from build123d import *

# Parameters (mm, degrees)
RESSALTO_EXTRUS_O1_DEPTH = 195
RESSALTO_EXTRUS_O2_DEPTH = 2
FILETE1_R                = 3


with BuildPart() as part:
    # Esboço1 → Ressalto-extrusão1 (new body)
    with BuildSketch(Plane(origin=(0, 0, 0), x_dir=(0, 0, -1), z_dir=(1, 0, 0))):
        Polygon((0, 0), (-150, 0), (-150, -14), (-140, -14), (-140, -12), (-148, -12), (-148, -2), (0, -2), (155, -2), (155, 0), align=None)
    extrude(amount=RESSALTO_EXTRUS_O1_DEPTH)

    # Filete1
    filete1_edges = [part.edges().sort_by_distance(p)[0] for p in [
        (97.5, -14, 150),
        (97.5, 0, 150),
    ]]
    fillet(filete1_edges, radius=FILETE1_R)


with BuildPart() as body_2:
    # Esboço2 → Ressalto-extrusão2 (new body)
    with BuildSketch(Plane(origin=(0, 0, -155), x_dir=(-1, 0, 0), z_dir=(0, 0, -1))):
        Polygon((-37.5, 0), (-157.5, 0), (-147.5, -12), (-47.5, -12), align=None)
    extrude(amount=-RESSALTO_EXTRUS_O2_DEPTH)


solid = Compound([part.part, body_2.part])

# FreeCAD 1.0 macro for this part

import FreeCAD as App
import Part
import Sketcher

V = App.Vector
Q = App.Units.Quantity


def edges_at(feature, points):
    """Names of the edges that pass closest to the given points."""
    edges = feature.Shape.Edges
    near = lambda p: min(range(len(edges)), key=lambda i: edges[i].distToShape(Part.Vertex(*p))[0])
    return sorted({f"Edge{near(p) + 1}" for p in points})


def add_polygon(sketch, points):
    """Adds a closed chain of lines whose ends are joined by coincident constraints."""
    first, n = sketch.GeometryCount, len(points)
    for a, b in zip(points, points[1:] + points[:1]):
        sketch.addGeometry(Part.LineSegment(App.Vector(*a, 0), App.Vector(*b, 0)), False)
    for i in range(n):
        sketch.addConstraint(Sketcher.Constraint("Coincident", first + i, 2, first + (i + 1) % n, 1))

doc = App.newDocument("Part")
params = doc.addObject("Spreadsheet::Sheet", "Params")
for row, (alias, value) in enumerate([
    ("sketch1_width", "14 mm"),
    ("sketch1_width2", "2 mm"),
    ("sketch1_height", "8 mm"),
    ("sketch1_height2", "303 mm"),
    ("pad1_length", "195 mm"),
    ("fillet_radius", "3 mm"),
    ("sketch2_width", "120 mm"),
    ("sketch2_width2", "100 mm"),
    ("pad2_length", "2 mm"),
], start=1):
    params.set(f"A{row}", alias)
    params.set(f"B{row}", "=" + value)
    params.setAlias(f"B{row}", alias)

body = doc.addObject("PartDesign::Body", "Body")

sketch1 = body.newObject("Sketcher::SketchObject", "Sketch")
sketch1.AttachmentSupport = (doc.getObject("YZ_Plane"), [""])
sketch1.MapMode = "FlatFace"
add_polygon(sketch1, [(0, 150), (-14, 150), (-14, 140), (-12, 140), (-12, 148), (-2, 148), (-2, -155), (0, -155)])
sketch1.addConstraint([
    Sketcher.Constraint("Horizontal", 0),
    Sketcher.Constraint("Vertical", 1),
    Sketcher.Constraint("Horizontal", 2),
    Sketcher.Constraint("Vertical", 3),
    Sketcher.Constraint("Horizontal", 4),
    Sketcher.Constraint("Vertical", 5),
    Sketcher.Constraint("Horizontal", 6),
    Sketcher.Constraint("Vertical", 7),
    Sketcher.Constraint("PointOnObject", 6, 2, -2),
    Sketcher.Constraint("Equal", 2, 6),
    Sketcher.Constraint("Equal", 4, 1),
    Sketcher.Constraint("DistanceX", 0, 2, 0, 1, Q("14 mm")),
    Sketcher.Constraint("DistanceX", 2, 1, 2, 2, Q("2 mm")),
    Sketcher.Constraint("DistanceY", 3, 1, 3, 2, Q("8 mm")),
    Sketcher.Constraint("DistanceY", 5, 2, 5, 1, Q("303 mm")),
    Sketcher.Constraint("DistanceY", -1, 1, 0, 2, Q("150 mm")),
])
sketch1.setExpression("Constraints[19]", "Params.sketch1_width")
sketch1.setExpression("Constraints[20]", "Params.sketch1_width2")
sketch1.setExpression("Constraints[21]", "Params.sketch1_height")
sketch1.setExpression("Constraints[22]", "Params.sketch1_height2")
pad1 = body.newObject("PartDesign::Pad", "Pad")
pad1.Profile = sketch1
pad1.setExpression("Length", "Params.pad1_length")
doc.recompute()

fillet = body.newObject("PartDesign::Fillet", "Fillet")
fillet.Base = (pad1, edges_at(pad1, [(97.5, -14, 150), (97.5, 0, 150)]))
fillet.setExpression("Radius", "Params.fillet_radius")
body2 = doc.addObject("PartDesign::Body", "Body001")

sketch2 = body2.newObject("Sketcher::SketchObject", "Sketch001")
sketch2.AttachmentSupport = (doc.getObject("XY_Plane001"), [""])
sketch2.MapMode = "FlatFace"
sketch2.AttachmentOffset = App.Placement(V(0, 0, -155), App.Rotation())
add_polygon(sketch2, [(37.5, 0), (157.5, 0), (147.5, -12), (47.5, -12)])
sketch2.addConstraint([
    Sketcher.Constraint("Horizontal", 0),
    Sketcher.Constraint("Horizontal", 2),
    Sketcher.Constraint("PointOnObject", 0, 2, -1),
    Sketcher.Constraint("Equal", 1, 3),
    Sketcher.Constraint("DistanceX", 0, 1, 0, 2, Q("120 mm")),
    Sketcher.Constraint("DistanceX", 2, 2, 2, 1, Q("100 mm")),
    Sketcher.Constraint("DistanceY", 1, 2, -1, 1, Q("12 mm")),
    Sketcher.Constraint("DistanceX", -1, 1, 0, 2, Q("157.5 mm")),
])
sketch2.setExpression("Constraints[8]", "Params.sketch2_width")
sketch2.setExpression("Constraints[9]", "Params.sketch2_width2")
pad2 = body2.newObject("PartDesign::Pad", "Pad001")
pad2.Profile = sketch2
pad2.setExpression("Length", "Params.pad2_length")

doc.recompute()
